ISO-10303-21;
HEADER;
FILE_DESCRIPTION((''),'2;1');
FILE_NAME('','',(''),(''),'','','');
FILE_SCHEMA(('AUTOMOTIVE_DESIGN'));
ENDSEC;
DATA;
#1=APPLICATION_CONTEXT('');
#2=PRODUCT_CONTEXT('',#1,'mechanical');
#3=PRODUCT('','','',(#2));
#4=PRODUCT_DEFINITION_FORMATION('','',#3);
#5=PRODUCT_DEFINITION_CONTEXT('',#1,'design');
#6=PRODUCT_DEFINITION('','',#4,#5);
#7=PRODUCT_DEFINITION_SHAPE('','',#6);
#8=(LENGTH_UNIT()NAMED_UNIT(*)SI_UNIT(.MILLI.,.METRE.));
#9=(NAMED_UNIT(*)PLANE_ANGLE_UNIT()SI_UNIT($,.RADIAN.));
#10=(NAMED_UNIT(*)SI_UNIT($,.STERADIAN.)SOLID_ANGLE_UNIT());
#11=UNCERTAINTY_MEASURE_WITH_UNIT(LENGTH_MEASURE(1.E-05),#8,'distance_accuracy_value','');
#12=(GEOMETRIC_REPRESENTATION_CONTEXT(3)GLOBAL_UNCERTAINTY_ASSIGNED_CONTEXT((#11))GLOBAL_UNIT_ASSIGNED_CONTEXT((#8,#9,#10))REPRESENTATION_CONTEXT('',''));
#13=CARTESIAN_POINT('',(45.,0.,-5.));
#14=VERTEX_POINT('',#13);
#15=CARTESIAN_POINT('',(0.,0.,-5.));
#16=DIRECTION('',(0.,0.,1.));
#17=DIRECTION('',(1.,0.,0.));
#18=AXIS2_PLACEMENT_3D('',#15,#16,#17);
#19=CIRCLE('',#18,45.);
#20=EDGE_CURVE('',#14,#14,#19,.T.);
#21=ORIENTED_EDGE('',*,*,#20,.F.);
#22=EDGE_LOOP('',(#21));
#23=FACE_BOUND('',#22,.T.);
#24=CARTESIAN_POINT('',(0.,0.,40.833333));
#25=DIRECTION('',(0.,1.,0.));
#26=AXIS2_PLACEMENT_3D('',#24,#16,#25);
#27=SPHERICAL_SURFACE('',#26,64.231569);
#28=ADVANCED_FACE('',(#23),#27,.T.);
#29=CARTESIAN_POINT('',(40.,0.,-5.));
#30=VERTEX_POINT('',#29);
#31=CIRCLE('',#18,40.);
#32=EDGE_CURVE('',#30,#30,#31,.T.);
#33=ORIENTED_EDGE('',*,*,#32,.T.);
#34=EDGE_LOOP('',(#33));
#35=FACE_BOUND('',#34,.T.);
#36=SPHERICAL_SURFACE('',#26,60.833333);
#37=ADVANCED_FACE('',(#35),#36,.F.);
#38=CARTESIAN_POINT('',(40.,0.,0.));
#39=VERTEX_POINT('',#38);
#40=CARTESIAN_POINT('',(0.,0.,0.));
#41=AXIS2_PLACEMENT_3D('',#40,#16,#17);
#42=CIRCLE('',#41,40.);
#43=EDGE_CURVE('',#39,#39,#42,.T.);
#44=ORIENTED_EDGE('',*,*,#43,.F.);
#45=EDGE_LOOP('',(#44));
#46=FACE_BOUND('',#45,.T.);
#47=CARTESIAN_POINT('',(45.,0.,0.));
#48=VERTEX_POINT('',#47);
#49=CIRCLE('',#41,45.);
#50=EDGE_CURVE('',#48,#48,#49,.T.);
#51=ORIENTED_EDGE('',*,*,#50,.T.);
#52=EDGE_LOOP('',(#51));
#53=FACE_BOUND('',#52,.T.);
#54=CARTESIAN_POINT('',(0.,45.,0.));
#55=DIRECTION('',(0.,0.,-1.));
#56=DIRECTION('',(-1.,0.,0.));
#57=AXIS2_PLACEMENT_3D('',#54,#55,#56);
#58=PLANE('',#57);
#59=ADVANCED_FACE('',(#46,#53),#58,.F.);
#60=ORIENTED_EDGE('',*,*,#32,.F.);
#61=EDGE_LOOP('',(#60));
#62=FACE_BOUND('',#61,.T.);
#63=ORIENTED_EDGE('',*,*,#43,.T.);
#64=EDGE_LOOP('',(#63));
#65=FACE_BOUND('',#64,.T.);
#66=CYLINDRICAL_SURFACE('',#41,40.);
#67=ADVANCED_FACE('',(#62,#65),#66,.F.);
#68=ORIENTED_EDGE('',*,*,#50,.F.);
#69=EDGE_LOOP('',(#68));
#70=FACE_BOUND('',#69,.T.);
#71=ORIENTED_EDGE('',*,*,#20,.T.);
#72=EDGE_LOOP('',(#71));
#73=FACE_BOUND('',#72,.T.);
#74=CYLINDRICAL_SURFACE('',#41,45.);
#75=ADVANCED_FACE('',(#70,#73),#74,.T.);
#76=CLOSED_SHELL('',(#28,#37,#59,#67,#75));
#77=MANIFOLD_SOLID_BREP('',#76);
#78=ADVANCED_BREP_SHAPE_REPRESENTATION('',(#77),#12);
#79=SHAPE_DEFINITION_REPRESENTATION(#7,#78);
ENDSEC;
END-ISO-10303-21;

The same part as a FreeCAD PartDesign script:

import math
import FreeCAD as App
import Part
import Sketcher
from FreeCAD import Vector
Q = App.Units.Quantity

doc = App.newDocument("Part")
body = doc.addObject("PartDesign::Body", "Body")

# Sketch on YZ plane
sketch1 = body.newObject("Sketcher::SketchObject", "Sketch")
sketch1.AttachmentSupport = (doc.getObject("YZ_Plane"), [""])
sketch1.MapMode = "FlatFace"
sketch1.addGeometry(Part.LineSegment(Vector(45, 0, 0), Vector(40, 0, 0)), False)
sketch1.addGeometry(Part.LineSegment(Vector(40, 0, 0), Vector(40, -5, 0)), False)
sketch1.addGeometry(Part.ArcOfCircle(Part.Circle(Vector(0, 40.8, 0), Vector(0, 0, 1), 60.8), math.radians(-90), math.radians(-49)), False)
sketch1.addGeometry(Part.LineSegment(Vector(0, -20, 0), Vector(0, -23.4, 0)), False)
sketch1.addGeometry(Part.ArcOfCircle(Part.Circle(Vector(0, 40.8, 0), Vector(0, 0, 1), 64.2), math.radians(-90), math.radians(-46)), False)
sketch1.addGeometry(Part.LineSegment(Vector(45, -5, 0), Vector(45, 0, 0)), False)
sketch1.addConstraint(Sketcher.Constraint("Coincident", 0, 2, 1, 1))
sketch1.addConstraint(Sketcher.Constraint("Coincident", 1, 2, 2, 2))
sketch1.addConstraint(Sketcher.Constraint("Coincident", 2, 1, 3, 1))
sketch1.addConstraint(Sketcher.Constraint("Coincident", 3, 2, 4, 1))
sketch1.addConstraint(Sketcher.Constraint("Coincident", 4, 2, 5, 1))
sketch1.addConstraint(Sketcher.Constraint("Coincident", 5, 2, 0, 1))
sketch1.addConstraint(Sketcher.Constraint("Horizontal", 0))
sketch1.addConstraint(Sketcher.Constraint("Vertical", 1))
sketch1.addConstraint(Sketcher.Constraint("Vertical", 3))
sketch1.addConstraint(Sketcher.Constraint("Vertical", 5))
sketch1.addConstraint(Sketcher.Constraint("Coincident", 4, 3, 2, 3))
sketch1.addConstraint(Sketcher.Constraint("PointOnObject", 2, 3, -2))
sketch1.addConstraint(Sketcher.Constraint("PointOnObject", 0, 2, -1))
sketch1.addConstraint(Sketcher.Constraint("PointOnObject", 2, 1, -2))
sketch1.addConstraint(Sketcher.Constraint("Horizontal", 1, 2, 4, 2))
sketch1.addConstraint(Sketcher.Constraint("Equal", 0, 1))
sketch1.addConstraint(Sketcher.Constraint("DistanceX", 0, 2, 0, 1, Q("5 mm")))
sketch1.addConstraint(Sketcher.Constraint("DistanceX", -1, 1, 0, 2, Q("40 mm")))
sketch1.addConstraint(Sketcher.Constraint("DistanceY", 2, 1, -1, 1, Q("20 mm")))
revolution = body.newObject("PartDesign::Revolution", "Revolution")
revolution.Profile = sketch1
revolution.ReferenceAxis = (sketch1, ["V_Axis"])
revolution.Angle = 360

doc.recompute()
